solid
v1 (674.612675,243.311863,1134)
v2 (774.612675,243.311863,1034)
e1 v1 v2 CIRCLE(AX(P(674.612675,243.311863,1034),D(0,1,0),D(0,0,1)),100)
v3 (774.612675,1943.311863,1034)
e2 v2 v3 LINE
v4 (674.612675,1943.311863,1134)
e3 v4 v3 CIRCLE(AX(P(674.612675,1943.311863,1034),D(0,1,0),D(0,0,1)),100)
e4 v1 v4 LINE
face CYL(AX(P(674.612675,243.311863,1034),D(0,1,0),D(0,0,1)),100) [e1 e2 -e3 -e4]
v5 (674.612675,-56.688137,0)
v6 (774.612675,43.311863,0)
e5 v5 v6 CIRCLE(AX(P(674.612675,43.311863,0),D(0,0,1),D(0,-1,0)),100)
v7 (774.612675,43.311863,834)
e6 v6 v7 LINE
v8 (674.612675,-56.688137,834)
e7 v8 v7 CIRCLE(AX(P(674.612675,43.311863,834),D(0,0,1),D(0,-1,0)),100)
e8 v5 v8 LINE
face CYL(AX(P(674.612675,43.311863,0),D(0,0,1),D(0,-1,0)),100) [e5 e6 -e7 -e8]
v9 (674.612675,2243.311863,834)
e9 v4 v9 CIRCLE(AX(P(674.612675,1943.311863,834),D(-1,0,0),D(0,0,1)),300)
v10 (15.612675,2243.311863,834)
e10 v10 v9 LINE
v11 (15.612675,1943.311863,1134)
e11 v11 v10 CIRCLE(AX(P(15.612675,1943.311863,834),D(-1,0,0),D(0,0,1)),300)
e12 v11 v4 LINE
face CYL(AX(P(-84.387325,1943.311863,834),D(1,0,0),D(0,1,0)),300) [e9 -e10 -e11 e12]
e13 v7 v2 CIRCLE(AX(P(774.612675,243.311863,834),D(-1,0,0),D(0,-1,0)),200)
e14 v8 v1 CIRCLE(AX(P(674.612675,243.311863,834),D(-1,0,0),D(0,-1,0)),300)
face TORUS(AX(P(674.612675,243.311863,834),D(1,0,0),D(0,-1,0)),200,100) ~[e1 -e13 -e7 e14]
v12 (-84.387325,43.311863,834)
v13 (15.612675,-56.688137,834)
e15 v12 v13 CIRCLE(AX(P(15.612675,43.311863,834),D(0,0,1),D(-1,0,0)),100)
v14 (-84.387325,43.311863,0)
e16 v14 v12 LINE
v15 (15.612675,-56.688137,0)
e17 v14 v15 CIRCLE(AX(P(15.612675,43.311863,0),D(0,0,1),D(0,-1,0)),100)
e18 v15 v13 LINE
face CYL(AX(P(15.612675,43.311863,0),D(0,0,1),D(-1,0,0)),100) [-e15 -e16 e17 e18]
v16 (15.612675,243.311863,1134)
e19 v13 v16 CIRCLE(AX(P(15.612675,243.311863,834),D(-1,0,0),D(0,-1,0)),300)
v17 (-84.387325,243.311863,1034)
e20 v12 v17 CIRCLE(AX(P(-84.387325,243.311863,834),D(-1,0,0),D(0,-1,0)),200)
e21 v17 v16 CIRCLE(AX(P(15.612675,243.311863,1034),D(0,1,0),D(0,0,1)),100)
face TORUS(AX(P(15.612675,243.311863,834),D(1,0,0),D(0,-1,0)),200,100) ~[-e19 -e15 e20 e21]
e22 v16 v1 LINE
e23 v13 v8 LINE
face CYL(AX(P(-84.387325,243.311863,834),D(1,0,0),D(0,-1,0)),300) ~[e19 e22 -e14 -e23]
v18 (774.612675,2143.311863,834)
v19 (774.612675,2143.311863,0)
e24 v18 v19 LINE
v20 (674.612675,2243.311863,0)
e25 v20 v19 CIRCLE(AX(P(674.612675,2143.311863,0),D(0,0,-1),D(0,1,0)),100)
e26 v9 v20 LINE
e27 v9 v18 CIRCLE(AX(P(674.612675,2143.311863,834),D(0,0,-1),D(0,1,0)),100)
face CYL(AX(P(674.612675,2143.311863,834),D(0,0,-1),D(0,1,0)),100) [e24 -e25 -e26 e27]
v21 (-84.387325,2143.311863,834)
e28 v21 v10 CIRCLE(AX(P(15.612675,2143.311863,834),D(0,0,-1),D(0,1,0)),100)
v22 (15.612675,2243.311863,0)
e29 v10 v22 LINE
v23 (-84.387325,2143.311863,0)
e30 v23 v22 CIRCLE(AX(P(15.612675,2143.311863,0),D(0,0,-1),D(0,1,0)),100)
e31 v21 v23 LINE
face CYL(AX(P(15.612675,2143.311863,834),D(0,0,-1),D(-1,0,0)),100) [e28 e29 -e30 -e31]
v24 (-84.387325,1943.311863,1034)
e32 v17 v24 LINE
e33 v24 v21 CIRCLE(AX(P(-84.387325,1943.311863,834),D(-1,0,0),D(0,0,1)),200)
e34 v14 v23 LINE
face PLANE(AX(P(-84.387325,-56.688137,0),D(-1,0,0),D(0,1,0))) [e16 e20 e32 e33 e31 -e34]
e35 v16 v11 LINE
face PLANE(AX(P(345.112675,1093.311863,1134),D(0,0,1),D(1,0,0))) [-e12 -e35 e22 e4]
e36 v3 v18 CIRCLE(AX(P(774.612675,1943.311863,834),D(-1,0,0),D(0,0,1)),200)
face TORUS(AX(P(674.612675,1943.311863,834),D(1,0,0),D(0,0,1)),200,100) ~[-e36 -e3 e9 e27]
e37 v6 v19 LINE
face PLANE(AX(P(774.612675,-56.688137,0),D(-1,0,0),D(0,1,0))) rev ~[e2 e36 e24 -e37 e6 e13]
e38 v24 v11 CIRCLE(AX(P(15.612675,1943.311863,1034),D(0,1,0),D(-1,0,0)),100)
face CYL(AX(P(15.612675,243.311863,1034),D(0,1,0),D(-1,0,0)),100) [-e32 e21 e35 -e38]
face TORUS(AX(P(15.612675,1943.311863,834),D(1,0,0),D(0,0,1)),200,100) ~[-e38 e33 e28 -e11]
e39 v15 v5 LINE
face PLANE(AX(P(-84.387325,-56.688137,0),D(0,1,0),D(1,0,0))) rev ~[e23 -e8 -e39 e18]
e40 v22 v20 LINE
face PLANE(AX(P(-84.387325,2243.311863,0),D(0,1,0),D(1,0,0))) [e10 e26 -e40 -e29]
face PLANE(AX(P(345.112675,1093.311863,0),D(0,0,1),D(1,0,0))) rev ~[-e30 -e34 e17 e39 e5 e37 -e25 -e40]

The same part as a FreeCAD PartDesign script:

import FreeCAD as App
import Part
import Sketcher
Q = App.Units.Quantity


def edges_at(feature, points):
    """Names of the edges that pass closest to the given points."""
    edges = feature.Shape.Edges
    near = lambda p: min(range(len(edges)), key=lambda i: edges[i].distToShape(Part.Vertex(*p))[0])
    return sorted({f"Edge{near(p) + 1}" for p in points})


def add_polygon(sketch, points):
    """Adds a closed chain of lines whose ends are joined by coincident constraints."""
    first, n = sketch.GeometryCount, len(points)
    for a, b in zip(points, points[1:] + points[:1]):
        sketch.addGeometry(Part.LineSegment(App.Vector(*a, 0), App.Vector(*b, 0)), False)
    for i in range(n):
        sketch.addConstraint(Sketcher.Constraint("Coincident", first + i, 2, first + (i + 1) % n, 1))

doc = App.newDocument("Part")
body = doc.addObject("PartDesign::Body", "Body")

sketch1 = body.newObject("Sketcher::SketchObject", "Sketch")
sketch1.AttachmentSupport = (doc.getObject("XY_Plane"), [""])
sketch1.MapMode = "FlatFace"
add_polygon(sketch1, [(-84, 2243), (-84, -57), (775, -57), (775, 2243)])
sketch1.addConstraint([
    Sketcher.Constraint("Vertical", 0),
    Sketcher.Constraint("Horizontal", 1),
    Sketcher.Constraint("Vertical", 2),
    Sketcher.Constraint("Horizontal", 3),
    Sketcher.Constraint("DistanceX", 1, 1, 1, 2, Q("859 mm")),
    Sketcher.Constraint("DistanceY", 0, 2, 0, 1, Q("2300 mm")),
    Sketcher.Constraint("DistanceX", 0, 2, -1, 1, Q("84.387325 mm")),
    Sketcher.Constraint("DistanceY", 0, 2, -1, 1, Q("56.688137 mm")),
])
pad1 = body.newObject("PartDesign::Pad", "Pad")
pad1.Profile = sketch1
pad1.Length = 1134
doc.recompute()

fillet = body.newObject("PartDesign::Fillet", "Fillet")
fillet.Base = (pad1, edges_at(pad1, [(345.113, -56.688, 1134), (345.113, 2243.312, 1134)]))
fillet.Radius = 300
doc.recompute()

fillet2 = body.newObject("PartDesign::Fillet", "Fillet001")
fillet2.Base = (fillet, edges_at(fillet, [
    (774.613, 1093.312, 1134),
    (774.613, 31.18, 1046.132),
    (774.613, -56.688, 417),
    (774.613, 2155.444, 1046.132),
    (774.613, 2243.312, 417),
    (-84.387, -56.688, 417),
    (-84.387, 31.18, 1046.132),
    (-84.387, 1093.312, 1134),
    (-84.387, 2155.444, 1046.132),
    (-84.387, 2243.312, 417),
]))
fillet2.Radius = 100

doc.recompute()
